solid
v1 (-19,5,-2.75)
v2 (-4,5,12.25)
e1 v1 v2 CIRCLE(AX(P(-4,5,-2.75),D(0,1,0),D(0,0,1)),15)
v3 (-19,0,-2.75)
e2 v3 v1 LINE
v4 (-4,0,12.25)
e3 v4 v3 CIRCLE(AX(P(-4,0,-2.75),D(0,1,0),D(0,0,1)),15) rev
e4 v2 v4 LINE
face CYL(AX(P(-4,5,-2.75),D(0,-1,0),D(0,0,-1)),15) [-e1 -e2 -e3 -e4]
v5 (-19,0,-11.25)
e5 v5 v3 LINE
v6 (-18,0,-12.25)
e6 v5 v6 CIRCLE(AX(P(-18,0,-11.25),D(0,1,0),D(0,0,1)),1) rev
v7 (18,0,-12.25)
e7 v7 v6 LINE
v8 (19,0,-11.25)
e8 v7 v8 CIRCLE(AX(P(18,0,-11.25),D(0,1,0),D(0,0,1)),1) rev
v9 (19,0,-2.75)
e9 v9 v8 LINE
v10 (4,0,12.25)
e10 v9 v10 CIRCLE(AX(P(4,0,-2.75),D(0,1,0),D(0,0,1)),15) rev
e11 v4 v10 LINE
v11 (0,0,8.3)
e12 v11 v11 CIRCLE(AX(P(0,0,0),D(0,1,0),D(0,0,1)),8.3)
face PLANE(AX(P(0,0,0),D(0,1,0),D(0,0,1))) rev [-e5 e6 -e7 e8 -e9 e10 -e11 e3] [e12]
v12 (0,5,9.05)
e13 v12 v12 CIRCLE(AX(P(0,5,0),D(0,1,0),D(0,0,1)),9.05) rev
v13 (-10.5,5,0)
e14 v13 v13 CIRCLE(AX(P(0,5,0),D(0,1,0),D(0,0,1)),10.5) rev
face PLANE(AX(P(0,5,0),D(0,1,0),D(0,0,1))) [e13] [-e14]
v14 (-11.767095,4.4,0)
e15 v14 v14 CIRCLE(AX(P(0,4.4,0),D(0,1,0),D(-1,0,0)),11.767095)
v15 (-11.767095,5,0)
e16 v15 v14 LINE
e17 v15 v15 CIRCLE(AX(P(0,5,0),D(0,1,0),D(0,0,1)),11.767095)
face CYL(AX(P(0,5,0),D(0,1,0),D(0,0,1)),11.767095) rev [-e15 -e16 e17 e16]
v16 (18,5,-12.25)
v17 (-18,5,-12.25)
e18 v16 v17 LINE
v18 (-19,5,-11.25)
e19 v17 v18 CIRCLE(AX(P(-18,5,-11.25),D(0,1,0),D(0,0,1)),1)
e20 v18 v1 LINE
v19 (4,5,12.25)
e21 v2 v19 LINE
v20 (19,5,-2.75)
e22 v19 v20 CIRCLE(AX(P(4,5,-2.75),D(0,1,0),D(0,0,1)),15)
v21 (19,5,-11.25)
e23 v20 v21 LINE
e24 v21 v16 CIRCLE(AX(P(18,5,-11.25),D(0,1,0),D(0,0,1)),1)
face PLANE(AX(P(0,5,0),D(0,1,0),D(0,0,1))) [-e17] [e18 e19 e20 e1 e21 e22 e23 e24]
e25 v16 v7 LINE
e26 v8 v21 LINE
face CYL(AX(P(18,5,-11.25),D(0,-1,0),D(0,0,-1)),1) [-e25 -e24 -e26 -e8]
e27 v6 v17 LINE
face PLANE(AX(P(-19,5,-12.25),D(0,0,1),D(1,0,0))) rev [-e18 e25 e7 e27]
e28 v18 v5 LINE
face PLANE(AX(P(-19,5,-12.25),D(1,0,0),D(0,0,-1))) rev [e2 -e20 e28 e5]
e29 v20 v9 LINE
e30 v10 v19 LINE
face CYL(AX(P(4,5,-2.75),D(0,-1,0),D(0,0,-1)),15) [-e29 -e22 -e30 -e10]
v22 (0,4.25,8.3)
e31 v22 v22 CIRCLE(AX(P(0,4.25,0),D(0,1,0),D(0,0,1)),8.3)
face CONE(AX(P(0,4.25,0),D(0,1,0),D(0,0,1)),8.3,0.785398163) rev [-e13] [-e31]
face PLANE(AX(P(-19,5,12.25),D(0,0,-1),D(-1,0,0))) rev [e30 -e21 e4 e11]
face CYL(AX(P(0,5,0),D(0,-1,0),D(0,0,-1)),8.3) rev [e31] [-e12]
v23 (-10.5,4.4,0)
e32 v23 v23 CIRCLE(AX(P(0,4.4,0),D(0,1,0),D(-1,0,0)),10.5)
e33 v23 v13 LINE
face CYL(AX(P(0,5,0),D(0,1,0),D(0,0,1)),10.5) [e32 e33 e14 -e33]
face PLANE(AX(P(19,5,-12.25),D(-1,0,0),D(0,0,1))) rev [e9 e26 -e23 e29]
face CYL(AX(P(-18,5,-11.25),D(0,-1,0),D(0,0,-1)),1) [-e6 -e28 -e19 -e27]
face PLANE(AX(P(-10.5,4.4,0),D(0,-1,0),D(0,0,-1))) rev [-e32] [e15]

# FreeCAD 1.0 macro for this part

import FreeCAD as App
import Part
import Sketcher
Q = App.Units.Quantity


def edges_at(feature, points):
    """Names of the edges that pass closest to the given points."""
    edges = feature.Shape.Edges
    near = lambda p: min(range(len(edges)), key=lambda i: edges[i].distToShape(Part.Vertex(*p))[0])
    return sorted({f"Edge{near(p) + 1}" for p in points})

doc = App.newDocument("Part")
body = doc.addObject("PartDesign::Body", "Body")

# Sketch on XZ plane
sketch1 = body.newObject("Sketcher::SketchObject", "Sketch")
sketch1.AttachmentSupport = (doc.getObject("XZ_Plane"), [""])
sketch1.MapMode = "FlatFace"
sketch1.addGeometry([
    Part.LineSegment(App.Vector(-19, -12, 0), App.Vector(-19, 12, 0)),  # 0
    Part.LineSegment(App.Vector(-19, 12, 0), App.Vector(19, 12, 0)),  # 1
    Part.LineSegment(App.Vector(19, 12, 0), App.Vector(19, -12, 0)),  # 2
    Part.LineSegment(App.Vector(19, -12, 0), App.Vector(-19, -12, 0)),  # 3
    Part.Circle(App.Vector(0, 0, 0), App.Vector(0, 0, 1), 8),  # 4
], False)
sketch1.addConstraint([
    Sketcher.Constraint("Coincident", 0, 2, 1, 1),
    Sketcher.Constraint("Coincident", 1, 2, 2, 1),
    Sketcher.Constraint("Coincident", 2, 2, 3, 1),
    Sketcher.Constraint("Coincident", 3, 2, 0, 1),
    Sketcher.Constraint("Vertical", 0),
    Sketcher.Constraint("Horizontal", 1),
    Sketcher.Constraint("Vertical", 2),
    Sketcher.Constraint("Horizontal", 3),
    Sketcher.Constraint("Coincident", 4, 3, -1, 1),
    Sketcher.Constraint("Symmetric", 0, 2, 2, 2, -1, 1),
    Sketcher.Constraint("Diameter", 4, Q("16.6 mm")),
    Sketcher.Constraint("DistanceX", 1, 1, 1, 2, Q("38 mm")),
    Sketcher.Constraint("DistanceY", 0, 1, 0, 2, Q("24.5 mm")),
])
pad1 = body.newObject("PartDesign::Pad", "Pad")
pad1.Profile = sketch1
pad1.Length = 5
pad1.Reversed = True
doc.recompute()

fillet = body.newObject("PartDesign::Fillet", "Fillet")
fillet.Base = (pad1, edges_at(pad1, [(19, 2.5, 12.25), (-19, 2.5, 12.25)]))
fillet.Radius = 15
doc.recompute()

fillet2 = body.newObject("PartDesign::Fillet", "Fillet001")
fillet2.Base = (fillet, edges_at(fillet, [(-19, 2.5, -12.25), (19, 2.5, -12.25)]))
fillet2.Radius = 1
doc.recompute()

chamfer = body.newObject("PartDesign::Chamfer", "Chamfer")
chamfer.Base = (fillet2, edges_at(fillet2, [(0, 5, -8.3)]))
chamfer.Size = 0.75

# Sketch on XY plane
sketch2 = body.newObject("Sketcher::SketchObject", "Sketch001")
sketch2.AttachmentSupport = (doc.getObject("XY_Plane"), [""])
sketch2.MapMode = "FlatFace"
sketch2.addGeometry([
    Part.LineSegment(App.Vector(-11.8, 5.6, 0), App.Vector(-11.8, 4.4, 0)),
    Part.LineSegment(App.Vector(-11.8, 4.4, 0), App.Vector(-10.5, 4.4, 0)),
    Part.LineSegment(App.Vector(-10.5, 4.4, 0), App.Vector(-10.5, 5.6, 0)),
    Part.LineSegment(App.Vector(-10.5, 5.6, 0), App.Vector(-11.8, 5.6, 0)),
], False)
sketch2.addConstraint([
    Sketcher.Constraint("Coincident", 0, 2, 1, 1),
    Sketcher.Constraint("Coincident", 1, 2, 2, 1),
    Sketcher.Constraint("Coincident", 2, 2, 3, 1),
    Sketcher.Constraint("Coincident", 3, 2, 0, 1),
    Sketcher.Constraint("Vertical", 0),
    Sketcher.Constraint("Horizontal", 1),
    Sketcher.Constraint("Vertical", 2),
    Sketcher.Constraint("Horizontal", 3),
    Sketcher.Constraint("DistanceY", -1, 1, 0, 2, Q("4.4 mm")),
    Sketcher.Constraint("DistanceX", 1, 2, -1, 1, Q("10.5 mm")),
    Sketcher.Constraint("DistanceY", 0, 2, 0, 1, Q("1.151259 mm")),
    Sketcher.Constraint("DistanceX", 1, 1, 1, 2, Q("1.267095 mm")),
])

# Sketch on XZ plane
sketch3 = body.newObject("Sketcher::SketchObject", "Sketch002")
sketch3.AttachmentSupport = (doc.getObject("XZ_Plane"), [""])
sketch3.MapMode = "FlatFace"
sketch3.AttachmentOffset = App.Placement(App.Vector(0, 0, -5), App.Rotation())
sketch3.addGeometry(Part.Circle(App.Vector(0, 0, 0), App.Vector(0, 0, 1), 11), False)
sketch3.addConstraint([
    Sketcher.Constraint("Coincident", 0, 3, -1, 1),
    Sketcher.Constraint("Diameter", 0, Q("22 mm")),
])
doc.recompute()

subtractivepipe = body.newObject("PartDesign::SubtractivePipe", "SubtractivePipe")
subtractivepipe.Profile = sketch2
subtractivepipe.Spine = (sketch3, ["Edge1"])

doc.recompute()
